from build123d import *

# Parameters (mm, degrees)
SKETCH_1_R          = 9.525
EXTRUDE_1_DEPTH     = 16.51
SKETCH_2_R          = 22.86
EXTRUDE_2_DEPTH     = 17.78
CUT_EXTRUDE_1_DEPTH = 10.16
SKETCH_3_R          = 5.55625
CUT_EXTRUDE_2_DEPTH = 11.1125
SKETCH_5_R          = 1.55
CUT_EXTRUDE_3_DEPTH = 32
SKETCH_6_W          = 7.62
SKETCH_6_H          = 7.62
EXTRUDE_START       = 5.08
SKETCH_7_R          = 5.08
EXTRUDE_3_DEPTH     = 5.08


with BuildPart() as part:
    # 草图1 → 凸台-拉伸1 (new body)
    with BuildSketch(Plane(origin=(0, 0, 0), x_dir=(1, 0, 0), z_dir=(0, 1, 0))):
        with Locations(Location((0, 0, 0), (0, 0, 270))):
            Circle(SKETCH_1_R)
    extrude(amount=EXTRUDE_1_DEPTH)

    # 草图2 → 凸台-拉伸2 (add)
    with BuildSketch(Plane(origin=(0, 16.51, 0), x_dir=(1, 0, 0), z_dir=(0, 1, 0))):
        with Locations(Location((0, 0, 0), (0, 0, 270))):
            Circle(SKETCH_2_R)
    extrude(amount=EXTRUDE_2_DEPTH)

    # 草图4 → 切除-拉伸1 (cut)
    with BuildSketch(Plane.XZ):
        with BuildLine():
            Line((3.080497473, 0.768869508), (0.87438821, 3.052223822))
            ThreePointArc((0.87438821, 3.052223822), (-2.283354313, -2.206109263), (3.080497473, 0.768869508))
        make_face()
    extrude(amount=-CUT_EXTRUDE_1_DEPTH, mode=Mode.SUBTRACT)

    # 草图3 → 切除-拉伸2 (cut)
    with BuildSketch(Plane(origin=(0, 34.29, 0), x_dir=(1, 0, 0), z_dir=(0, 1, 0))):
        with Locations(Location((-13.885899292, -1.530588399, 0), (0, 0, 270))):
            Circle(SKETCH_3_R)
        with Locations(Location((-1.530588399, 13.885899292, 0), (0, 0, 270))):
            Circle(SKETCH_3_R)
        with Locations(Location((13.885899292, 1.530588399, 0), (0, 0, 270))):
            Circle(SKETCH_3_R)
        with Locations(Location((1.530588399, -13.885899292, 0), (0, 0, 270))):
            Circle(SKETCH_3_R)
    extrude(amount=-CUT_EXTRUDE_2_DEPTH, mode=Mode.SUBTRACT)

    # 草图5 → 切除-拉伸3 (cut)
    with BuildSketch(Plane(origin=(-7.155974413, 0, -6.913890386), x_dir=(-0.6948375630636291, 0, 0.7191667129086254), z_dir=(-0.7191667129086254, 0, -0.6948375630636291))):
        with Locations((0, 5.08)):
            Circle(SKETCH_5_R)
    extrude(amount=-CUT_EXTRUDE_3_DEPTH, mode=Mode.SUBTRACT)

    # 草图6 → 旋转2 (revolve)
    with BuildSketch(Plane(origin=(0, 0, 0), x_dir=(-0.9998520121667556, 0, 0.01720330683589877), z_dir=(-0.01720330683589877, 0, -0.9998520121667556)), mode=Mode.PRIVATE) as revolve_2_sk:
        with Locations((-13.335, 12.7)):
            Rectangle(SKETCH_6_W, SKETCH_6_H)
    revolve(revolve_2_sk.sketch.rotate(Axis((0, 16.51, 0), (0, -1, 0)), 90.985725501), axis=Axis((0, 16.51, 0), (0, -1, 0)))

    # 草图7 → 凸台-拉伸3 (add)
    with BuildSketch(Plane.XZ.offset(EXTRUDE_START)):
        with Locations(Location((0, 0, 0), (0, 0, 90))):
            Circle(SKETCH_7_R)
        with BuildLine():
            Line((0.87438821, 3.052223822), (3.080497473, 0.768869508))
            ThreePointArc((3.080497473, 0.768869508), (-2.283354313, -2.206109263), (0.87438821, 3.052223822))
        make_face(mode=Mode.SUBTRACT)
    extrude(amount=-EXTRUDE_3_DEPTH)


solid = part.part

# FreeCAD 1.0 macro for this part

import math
import FreeCAD as App
import Part
import Sketcher

V = App.Vector
Q = App.Units.Quantity

doc = App.newDocument("Part")
body = doc.addObject("PartDesign::Body", "Body")

# Sketch on XZ plane
sketch1 = doc.addObject("Sketcher::SketchObject", "Sketch")
body.addObject(sketch1)
sketch1.AttachmentSupport = (doc.XZ_Plane, [""])
sketch1.MapMode = "FlatFace"
sketch1.addGeometry(Part.Circle(V(0, 0, 0), V(0, 0, 1), 10), False)
sketch1.addConstraint([
    Sketcher.Constraint("Coincident", 0, 3, -1, 1),
    Sketcher.Constraint("Diameter", 0, Q("0.75 in")),
])
pad1 = doc.addObject("PartDesign::Pad", "Pad")
body.addObject(pad1)
pad1.Profile = sketch1
pad1.Length = Q("0.65 in")
pad1.Reversed = True

# Sketch on XZ plane
sketch2 = doc.addObject("Sketcher::SketchObject", "Sketch001")
body.addObject(sketch2)
sketch2.AttachmentSupport = (doc.XZ_Plane, [""])
sketch2.MapMode = "FlatFace"
sketch2.AttachmentOffset = App.Placement(V(0, 0, -0.65 * 25.4), App.Rotation())
sketch2.addGeometry(Part.Circle(V(0, 0, 0), V(0, 0, 1), 23), False)
sketch2.addConstraint([
    Sketcher.Constraint("Coincident", 0, 3, -1, 1),
    Sketcher.Constraint("Diameter", 0, Q("1.8 in")),
])
pad2 = doc.addObject("PartDesign::Pad", "Pad001")
body.addObject(pad2)
pad2.Profile = sketch2
pad2.Length = Q("0.7 in")
pad2.Reversed = True

# Sketch on XZ plane
sketch3 = doc.addObject("Sketcher::SketchObject", "Sketch002")
body.addObject(sketch3)
sketch3.AttachmentSupport = (doc.XZ_Plane, [""])
sketch3.MapMode = "FlatFace"
sketch3.addGeometry([
    Part.LineSegment(V(3.1, 0.8, 0), V(0.9, 3.1, 0)),
    Part.ArcOfCircle(Part.Circle(V(0, 0, 0), V(0, 0, 1), 3.2), math.radians(74), math.radians(374)),
], False)
sketch3.addConstraint([
    Sketcher.Constraint("Coincident", 0, 1, 1, 2),
    Sketcher.Constraint("Coincident", 1, 1, 0, 2),
    Sketcher.Constraint("Coincident", 1, 3, -1, 1),
    Sketcher.Constraint("Radius", 1, Q("0.125 in")),
    Sketcher.Constraint("Distance", 0, Q("0.125 in")),
    Sketcher.Constraint("DistanceY", -1, 1, 0, 1, Q("0.76887 mm")),
])
pocket1 = doc.addObject("PartDesign::Pocket", "Pocket")
body.addObject(pocket1)
pocket1.Profile = sketch3
pocket1.Length = Q("0.4 in")

# Sketch on XZ plane
sketch4 = doc.addObject("Sketcher::SketchObject", "Sketch003")
body.addObject(sketch4)
sketch4.AttachmentSupport = (doc.XZ_Plane, [""])
sketch4.MapMode = "FlatFace"
sketch4.AttachmentOffset = App.Placement(V(0, 0, -1.35 * 25.4), App.Rotation())
sketch4.addGeometry([
    Part.Circle(V(-14, 2, 0), V(0, 0, 1), 6),
    Part.Circle(V(-2, -14, 0), V(0, 0, 1), 6),
    Part.Circle(V(14, -2, 0), V(0, 0, 1), 6),
    Part.Circle(V(2, 14, 0), V(0, 0, 1), 6),
], False)
sketch4.addConstraint([
    Sketcher.Constraint("Equal", 0, 1),
    Sketcher.Constraint("Equal", 1, 2),
    Sketcher.Constraint("Equal", 2, 3),
    Sketcher.Constraint("Symmetric", 0, 3, 2, 3, -1, 1),
    Sketcher.Constraint("Symmetric", 1, 3, 3, 3, -1, 1),
    Sketcher.Constraint("Diameter", 0, Q("0.4375 in")),
    Sketcher.Constraint("DistanceX", 0, 3, -1, 1, Q("13.885899 mm")),
    Sketcher.Constraint("DistanceY", 1, 3, -1, 1, Q("13.885899 mm")),
    Sketcher.Constraint("DistanceY", -1, 1, 0, 3, Q("1.530588 mm")),
    Sketcher.Constraint("DistanceX", 1, 3, -1, 1, Q("1.530588 mm")),
])
pocket2 = doc.addObject("PartDesign::Pocket", "Pocket001")
body.addObject(pocket2)
pocket2.Profile = sketch4
pocket2.Length = Q("0.4375 in")
pocket2.Reversed = True

# Sketch on an angled plane
sketch5 = doc.addObject("Sketcher::SketchObject", "Sketch004")
body.addObject(sketch5)
sketch5.Placement = App.Placement(V(-7.155974, 0, -6.91389), App.Rotation(V(-0.694837563, 0, 0.719166713), V(0, 1, 0), V(-0.719166713, 0, -0.694837563), "ZXY"))
sketch5.addGeometry(Part.Circle(V(0, 5.1, 0), V(0, 0, 1), 1.6), False)
sketch5.addConstraint([
    Sketcher.Constraint("PointOnObject", 0, 3, -2),
    Sketcher.Constraint("DistanceY", -1, 1, 0, 3, Q("0.2 in")),
    Sketcher.Constraint("Diameter", 0, Q("3.1 mm")),
])
pocket3 = doc.addObject("PartDesign::Pocket", "Pocket002")
body.addObject(pocket3)
pocket3.Profile = sketch5
pocket3.Length = 32

# Sketch on an angled plane
sketch6 = doc.addObject("Sketcher::SketchObject", "Sketch005")
body.addObject(sketch6)
sketch6.Placement = App.Placement(V(0, 0, 0), App.Rotation(V(-0.999852012, 0, 0.017203307), V(0, 1, 0), V(-0.017203307, 0, -0.999852012), "ZXY"))
sketch6.addGeometry([
    Part.LineSegment(V(-17, 17, 0), V(-17, 9, 0)),
    Part.LineSegment(V(-17, 9, 0), V(-10, 9, 0)),
    Part.LineSegment(V(-10, 9, 0), V(-10, 17, 0)),
    Part.LineSegment(V(-10, 17, 0), V(-17, 17, 0)),
], False)
sketch6.addConstraint([
    Sketcher.Constraint("Coincident", 0, 2, 1, 1),
    Sketcher.Constraint("Coincident", 1, 2, 2, 1),
    Sketcher.Constraint("Coincident", 2, 2, 3, 1),
    Sketcher.Constraint("Coincident", 3, 2, 0, 1),
    Sketcher.Constraint("Vertical", 0),
    Sketcher.Constraint("Horizontal", 1),
    Sketcher.Constraint("Vertical", 2),
    Sketcher.Constraint("Horizontal", 3),
    Sketcher.Constraint("Equal", 3, 0),
    Sketcher.Constraint("DistanceX", 1, 1, 1, 2, Q("0.3 in")),
    Sketcher.Constraint("DistanceY", -1, 1, 0, 2, Q("0.35 in")),
    Sketcher.Constraint("DistanceX", 0, 2, -1, 1, Q("0.675 in")),
])
revolution = doc.addObject("PartDesign::Revolution", "Revolution")
body.addObject(revolution)
revolution.Profile = sketch6
revolution.ReferenceAxis = (sketch6, ["V_Axis"])
revolution.Angle = 360

# Sketch on XZ plane
sketch7 = doc.addObject("Sketcher::SketchObject", "Sketch006")
body.addObject(sketch7)
sketch7.AttachmentSupport = (doc.XZ_Plane, [""])
sketch7.MapMode = "FlatFace"
sketch7.AttachmentOffset = App.Placement(V(0, 0, 0.2 * 25.4), App.Rotation())
sketch7.addGeometry([
    Part.Circle(V(0, 0, 0), V(0, 0, 1), 5.1),
    Part.ArcOfCircle(Part.Circle(V(0, 0, 0), V(0, 0, 1), 3.2), math.radians(74), math.radians(374)),
    Part.LineSegment(V(0.9, 3.1, 0), V(3.1, 0.8, 0)),
], False)
sketch7.addConstraint([
    Sketcher.Constraint("Coincident", 1, 1, 2, 1),
    Sketcher.Constraint("Coincident", 2, 2, 1, 2),
    Sketcher.Constraint("Coincident", 0, 3, -1, 1),
    Sketcher.Constraint("Coincident", 1, 3, -1, 1),
    Sketcher.Constraint("Diameter", 0, Q("0.4 in")),
    Sketcher.Constraint("Radius", 1, Q("0.125 in")),
    Sketcher.Constraint("Distance", 2, Q("0.125 in")),
    Sketcher.Constraint("DistanceX", -1, 1, 1, 1, Q("0.874388 mm")),
])
pad3 = doc.addObject("PartDesign::Pad", "Pad002")
body.addObject(pad3)
pad3.Profile = sketch7
pad3.Length = Q("0.2 in")
pad3.Reversed = True

doc.recompute()
